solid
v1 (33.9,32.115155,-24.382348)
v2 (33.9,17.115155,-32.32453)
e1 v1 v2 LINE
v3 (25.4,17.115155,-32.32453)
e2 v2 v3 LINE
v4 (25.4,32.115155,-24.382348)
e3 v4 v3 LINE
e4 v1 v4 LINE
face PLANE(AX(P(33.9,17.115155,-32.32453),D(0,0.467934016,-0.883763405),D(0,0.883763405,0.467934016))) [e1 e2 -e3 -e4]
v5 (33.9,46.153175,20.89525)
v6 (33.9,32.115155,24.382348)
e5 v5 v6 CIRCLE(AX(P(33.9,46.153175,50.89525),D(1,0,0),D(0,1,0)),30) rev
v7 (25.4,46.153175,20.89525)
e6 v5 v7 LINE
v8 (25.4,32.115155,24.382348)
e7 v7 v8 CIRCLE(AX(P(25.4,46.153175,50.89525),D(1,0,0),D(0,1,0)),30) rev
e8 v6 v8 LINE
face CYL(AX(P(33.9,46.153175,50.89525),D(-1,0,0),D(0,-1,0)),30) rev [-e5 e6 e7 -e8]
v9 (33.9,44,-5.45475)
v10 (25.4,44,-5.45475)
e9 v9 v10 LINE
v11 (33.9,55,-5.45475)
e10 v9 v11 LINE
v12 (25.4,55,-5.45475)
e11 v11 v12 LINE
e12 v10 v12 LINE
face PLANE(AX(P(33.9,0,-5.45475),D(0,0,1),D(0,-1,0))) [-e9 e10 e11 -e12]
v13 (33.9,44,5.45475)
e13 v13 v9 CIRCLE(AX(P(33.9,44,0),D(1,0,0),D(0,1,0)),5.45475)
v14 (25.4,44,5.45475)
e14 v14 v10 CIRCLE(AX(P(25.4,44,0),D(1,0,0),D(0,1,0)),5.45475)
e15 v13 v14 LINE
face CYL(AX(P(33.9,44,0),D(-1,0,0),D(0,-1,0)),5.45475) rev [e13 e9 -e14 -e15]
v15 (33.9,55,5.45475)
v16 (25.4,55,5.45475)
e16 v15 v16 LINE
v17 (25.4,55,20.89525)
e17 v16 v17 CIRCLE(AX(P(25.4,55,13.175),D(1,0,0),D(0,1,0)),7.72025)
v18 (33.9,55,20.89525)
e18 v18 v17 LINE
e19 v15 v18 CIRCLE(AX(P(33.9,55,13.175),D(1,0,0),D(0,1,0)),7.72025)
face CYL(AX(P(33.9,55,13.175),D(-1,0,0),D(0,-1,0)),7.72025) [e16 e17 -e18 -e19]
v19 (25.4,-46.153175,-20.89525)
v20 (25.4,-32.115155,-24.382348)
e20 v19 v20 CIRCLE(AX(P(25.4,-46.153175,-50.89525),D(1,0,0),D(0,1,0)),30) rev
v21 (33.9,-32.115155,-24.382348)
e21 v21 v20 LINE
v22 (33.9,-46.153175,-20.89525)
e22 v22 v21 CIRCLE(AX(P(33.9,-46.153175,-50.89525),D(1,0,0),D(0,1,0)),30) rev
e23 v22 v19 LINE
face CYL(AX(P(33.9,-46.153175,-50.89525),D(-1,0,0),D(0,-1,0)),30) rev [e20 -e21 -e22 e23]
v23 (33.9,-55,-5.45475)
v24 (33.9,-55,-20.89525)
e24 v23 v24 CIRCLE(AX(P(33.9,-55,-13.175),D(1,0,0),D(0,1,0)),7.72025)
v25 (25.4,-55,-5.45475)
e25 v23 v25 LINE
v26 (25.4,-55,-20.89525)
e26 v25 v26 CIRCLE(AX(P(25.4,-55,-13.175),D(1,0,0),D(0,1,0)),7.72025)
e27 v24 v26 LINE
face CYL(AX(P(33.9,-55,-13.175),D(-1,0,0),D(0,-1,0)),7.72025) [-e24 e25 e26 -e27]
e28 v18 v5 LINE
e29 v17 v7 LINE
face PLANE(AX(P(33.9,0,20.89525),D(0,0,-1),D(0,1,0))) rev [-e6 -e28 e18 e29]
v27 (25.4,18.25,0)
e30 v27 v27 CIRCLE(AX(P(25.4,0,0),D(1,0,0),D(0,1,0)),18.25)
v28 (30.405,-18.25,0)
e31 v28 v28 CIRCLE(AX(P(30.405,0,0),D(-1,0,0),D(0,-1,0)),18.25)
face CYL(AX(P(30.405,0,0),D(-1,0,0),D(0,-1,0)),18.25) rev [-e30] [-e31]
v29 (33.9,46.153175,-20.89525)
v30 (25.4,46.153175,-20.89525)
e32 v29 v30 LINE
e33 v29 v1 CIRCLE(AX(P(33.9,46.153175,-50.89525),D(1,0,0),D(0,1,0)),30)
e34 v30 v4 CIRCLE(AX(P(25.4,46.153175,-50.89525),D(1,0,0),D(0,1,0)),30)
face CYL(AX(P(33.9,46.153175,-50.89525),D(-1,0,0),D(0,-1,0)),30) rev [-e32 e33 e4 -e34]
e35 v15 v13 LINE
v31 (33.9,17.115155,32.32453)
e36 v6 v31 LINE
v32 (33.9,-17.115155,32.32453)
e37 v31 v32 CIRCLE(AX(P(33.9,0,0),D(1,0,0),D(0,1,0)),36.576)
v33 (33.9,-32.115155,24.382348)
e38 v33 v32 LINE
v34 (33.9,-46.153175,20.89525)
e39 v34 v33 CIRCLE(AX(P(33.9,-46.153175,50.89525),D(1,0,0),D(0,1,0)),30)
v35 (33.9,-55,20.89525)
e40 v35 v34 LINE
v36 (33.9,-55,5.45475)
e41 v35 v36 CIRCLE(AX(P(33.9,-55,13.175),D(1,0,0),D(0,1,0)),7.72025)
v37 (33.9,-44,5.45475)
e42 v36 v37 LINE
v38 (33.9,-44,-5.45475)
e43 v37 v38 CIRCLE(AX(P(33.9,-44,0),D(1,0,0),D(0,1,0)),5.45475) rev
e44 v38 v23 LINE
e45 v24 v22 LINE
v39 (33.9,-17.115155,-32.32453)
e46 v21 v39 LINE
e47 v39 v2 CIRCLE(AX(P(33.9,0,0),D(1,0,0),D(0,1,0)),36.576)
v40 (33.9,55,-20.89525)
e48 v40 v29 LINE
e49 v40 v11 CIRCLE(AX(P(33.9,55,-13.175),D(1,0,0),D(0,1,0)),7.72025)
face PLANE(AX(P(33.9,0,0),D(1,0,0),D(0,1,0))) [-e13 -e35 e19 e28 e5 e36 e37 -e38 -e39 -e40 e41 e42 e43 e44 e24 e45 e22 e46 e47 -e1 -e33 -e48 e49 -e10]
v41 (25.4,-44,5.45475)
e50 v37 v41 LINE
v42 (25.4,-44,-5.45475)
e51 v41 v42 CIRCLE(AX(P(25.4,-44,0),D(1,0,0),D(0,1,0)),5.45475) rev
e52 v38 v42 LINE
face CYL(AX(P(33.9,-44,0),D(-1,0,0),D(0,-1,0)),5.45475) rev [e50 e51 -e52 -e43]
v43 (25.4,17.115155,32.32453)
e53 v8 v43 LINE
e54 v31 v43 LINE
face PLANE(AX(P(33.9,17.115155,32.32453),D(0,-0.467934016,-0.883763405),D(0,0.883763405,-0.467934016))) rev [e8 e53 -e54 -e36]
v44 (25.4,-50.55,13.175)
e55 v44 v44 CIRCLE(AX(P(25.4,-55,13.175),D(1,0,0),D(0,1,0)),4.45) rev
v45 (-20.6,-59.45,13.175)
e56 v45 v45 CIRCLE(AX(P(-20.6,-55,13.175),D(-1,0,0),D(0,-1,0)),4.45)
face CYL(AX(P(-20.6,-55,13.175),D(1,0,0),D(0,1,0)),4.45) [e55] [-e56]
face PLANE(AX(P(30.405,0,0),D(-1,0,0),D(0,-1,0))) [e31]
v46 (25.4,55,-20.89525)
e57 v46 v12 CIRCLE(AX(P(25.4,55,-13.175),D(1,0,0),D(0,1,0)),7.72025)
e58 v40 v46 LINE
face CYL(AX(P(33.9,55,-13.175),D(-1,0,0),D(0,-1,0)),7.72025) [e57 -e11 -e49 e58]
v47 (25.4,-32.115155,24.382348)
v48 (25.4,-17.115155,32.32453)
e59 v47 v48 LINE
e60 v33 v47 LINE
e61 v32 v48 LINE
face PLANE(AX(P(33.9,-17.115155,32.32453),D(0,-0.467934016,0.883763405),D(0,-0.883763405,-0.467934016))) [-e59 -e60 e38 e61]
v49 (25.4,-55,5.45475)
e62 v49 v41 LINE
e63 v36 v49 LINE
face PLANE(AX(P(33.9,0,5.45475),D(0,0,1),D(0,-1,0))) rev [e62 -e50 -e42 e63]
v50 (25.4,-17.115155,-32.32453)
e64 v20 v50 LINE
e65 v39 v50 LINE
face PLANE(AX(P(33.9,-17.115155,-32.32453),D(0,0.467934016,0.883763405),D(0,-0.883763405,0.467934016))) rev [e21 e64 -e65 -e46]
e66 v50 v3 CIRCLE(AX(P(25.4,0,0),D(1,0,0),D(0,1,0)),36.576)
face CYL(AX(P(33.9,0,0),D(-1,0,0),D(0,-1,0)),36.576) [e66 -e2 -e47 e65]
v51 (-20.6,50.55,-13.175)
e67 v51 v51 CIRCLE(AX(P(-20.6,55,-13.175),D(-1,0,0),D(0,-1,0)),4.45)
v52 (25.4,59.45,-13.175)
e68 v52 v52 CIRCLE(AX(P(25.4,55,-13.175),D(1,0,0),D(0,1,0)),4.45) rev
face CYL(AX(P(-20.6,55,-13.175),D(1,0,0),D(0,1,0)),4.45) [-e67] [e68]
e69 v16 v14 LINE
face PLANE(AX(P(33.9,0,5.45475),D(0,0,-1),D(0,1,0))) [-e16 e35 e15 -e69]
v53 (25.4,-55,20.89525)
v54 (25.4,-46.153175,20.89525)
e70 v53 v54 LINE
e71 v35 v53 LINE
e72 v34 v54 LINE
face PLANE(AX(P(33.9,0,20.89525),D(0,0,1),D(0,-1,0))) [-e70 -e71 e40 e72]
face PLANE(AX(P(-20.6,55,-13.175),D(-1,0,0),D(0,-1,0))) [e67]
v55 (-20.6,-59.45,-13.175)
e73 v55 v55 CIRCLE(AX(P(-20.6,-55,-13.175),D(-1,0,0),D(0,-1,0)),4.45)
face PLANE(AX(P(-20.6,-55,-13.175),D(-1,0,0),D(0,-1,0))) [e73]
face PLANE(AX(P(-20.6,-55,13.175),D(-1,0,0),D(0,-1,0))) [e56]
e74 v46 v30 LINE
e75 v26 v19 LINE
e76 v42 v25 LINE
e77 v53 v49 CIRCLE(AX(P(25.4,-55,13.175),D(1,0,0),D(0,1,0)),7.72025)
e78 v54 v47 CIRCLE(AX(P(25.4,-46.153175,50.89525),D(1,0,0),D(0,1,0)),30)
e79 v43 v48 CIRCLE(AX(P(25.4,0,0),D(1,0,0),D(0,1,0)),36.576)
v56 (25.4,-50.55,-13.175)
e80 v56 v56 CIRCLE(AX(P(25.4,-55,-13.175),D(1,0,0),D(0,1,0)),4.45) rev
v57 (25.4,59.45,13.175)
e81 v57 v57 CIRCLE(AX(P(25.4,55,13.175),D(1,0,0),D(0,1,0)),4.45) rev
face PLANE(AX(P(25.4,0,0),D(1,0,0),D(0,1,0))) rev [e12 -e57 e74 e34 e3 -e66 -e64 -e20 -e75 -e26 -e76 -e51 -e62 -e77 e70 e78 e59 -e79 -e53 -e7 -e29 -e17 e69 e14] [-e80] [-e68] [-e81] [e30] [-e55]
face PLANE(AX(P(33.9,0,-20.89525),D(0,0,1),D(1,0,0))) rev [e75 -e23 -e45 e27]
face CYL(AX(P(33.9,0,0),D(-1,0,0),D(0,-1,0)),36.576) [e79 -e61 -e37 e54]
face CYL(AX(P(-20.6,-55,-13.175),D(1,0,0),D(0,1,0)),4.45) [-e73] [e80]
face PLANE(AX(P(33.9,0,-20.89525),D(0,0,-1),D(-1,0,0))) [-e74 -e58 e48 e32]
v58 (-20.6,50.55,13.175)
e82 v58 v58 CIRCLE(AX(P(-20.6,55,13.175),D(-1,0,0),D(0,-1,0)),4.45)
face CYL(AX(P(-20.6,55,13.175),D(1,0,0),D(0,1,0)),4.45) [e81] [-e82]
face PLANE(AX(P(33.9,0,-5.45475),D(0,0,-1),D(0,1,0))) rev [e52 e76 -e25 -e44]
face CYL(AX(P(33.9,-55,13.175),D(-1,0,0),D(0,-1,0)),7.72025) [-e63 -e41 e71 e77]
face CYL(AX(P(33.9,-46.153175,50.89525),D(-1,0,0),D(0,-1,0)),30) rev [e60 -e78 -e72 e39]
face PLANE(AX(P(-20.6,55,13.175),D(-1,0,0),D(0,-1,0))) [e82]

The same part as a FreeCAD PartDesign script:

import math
import FreeCAD as App
import Part
import Sketcher
from FreeCAD import Vector


def add_polygon(sketch, points):
    """Adds a closed chain of lines whose ends are joined by coincident constraints."""
    first, n = sketch.GeometryCount, len(points)
    for a, b in zip(points, points[1:] + points[:1]):
        sketch.addGeometry(Part.LineSegment(App.Vector(*a, 0), App.Vector(*b, 0)), False)
    for i in range(n):
        sketch.addConstraint(Sketcher.Constraint("Coincident", first + i, 2, first + (i + 1) % n, 1))

doc = App.newDocument("Part")
body = doc.addObject("PartDesign::Body", "Body")

sketch1 = doc.addObject("Sketcher::SketchObject", "Sketch")
body.addObject(sketch1)
sketch1.AttachmentSupport = (doc.XY_Plane, [""])
sketch1.MapMode = "FlatFace"
add_polygon(sketch1, [(8.255, 18.25), (8.255, 0), (25.4, 0), (25.4, 18.25)])
sketch1.addConstraint(Sketcher.Constraint("Vertical", 0))
sketch1.addConstraint(Sketcher.Constraint("Horizontal", 1))
sketch1.addConstraint(Sketcher.Constraint("Vertical", 2))
sketch1.addConstraint(Sketcher.Constraint("Horizontal", 3))
sketch1.addConstraint(Sketcher.Constraint("PointOnObject", 0, 2, -1))
sketch1.addConstraint(Sketcher.Constraint("DistanceY", 0, 2, 0, 1, 18.25))
sketch1.addConstraint(Sketcher.Constraint("DistanceX", -1, 1, 1, 2, 25.4))
sketch1.addConstraint(Sketcher.Constraint("DistanceX", 1, 1, 1, 2, 17.145))
revolution = doc.addObject("PartDesign::Revolution", "Revolution")
body.addObject(revolution)
revolution.Profile = sketch1
revolution.ReferenceAxis = (sketch1, ["H_Axis"])
revolution.Angle = 360

sketch2 = doc.addObject("Sketcher::SketchObject", "Sketch001")
body.addObject(sketch2)
sketch2.AttachmentSupport = (doc.YZ_Plane, [""])
sketch2.MapMode = "FlatFace"
sketch2.AttachmentOffset = App.Placement(Vector(0, 0, 8.255), App.Rotation())
sketch2.addGeometry(Part.Circle(Vector(0, 0, 0), Vector(0, 0, 1), 3.71475), False)
sketch2.addConstraint(Sketcher.Constraint("Coincident", 0, 3, -1, 1))
sketch2.addConstraint(Sketcher.Constraint("Diameter", 0, 7.4295))
pocket1 = doc.addObject("PartDesign::Pocket", "Pocket")
body.addObject(pocket1)
pocket1.Profile = sketch2
pocket1.Length = 8.5725
pocket1.Reversed = True
body2 = doc.addObject("PartDesign::Body", "Body001")

sketch3 = doc.addObject("Sketcher::SketchObject", "Sketch002")
body2.addObject(sketch3)
sketch3.AttachmentSupport = (doc.getObject("YZ_Plane001"), [""])
sketch3.MapMode = "FlatFace"
sketch3.AttachmentOffset = App.Placement(Vector(0, 0, 25.4), App.Rotation())
sketch3.addGeometry(Part.LineSegment(Vector(32.115155, 24.382348, 0), Vector(17.115155, 32.32453, 0)), False)
sketch3.addGeometry(Part.ArcOfCircle(Part.Circle(Vector(0, 0, 0), Vector(0, 0, 1), 36.576), math.radians(62.099728), math.radians(117.900272)), False)
sketch3.addGeometry(Part.LineSegment(Vector(-17.115155, 32.32453, 0), Vector(-32.115155, 24.382348, 0)), False)
sketch3.addGeometry(Part.ArcOfCircle(Part.Circle(Vector(-46.153175, 50.89525, 0), Vector(0, 0, 1), 30), math.radians(-90), math.radians(-62.099728)), False)
sketch3.addGeometry(Part.LineSegment(Vector(-46.153175, 20.89525, 0), Vector(-55, 20.89525, 0)), False)
sketch3.addGeometry(Part.ArcOfCircle(Part.Circle(Vector(-55, 13.175, 0), Vector(0, 0, 1), 7.72025), math.radians(90), math.radians(270)), False)
sketch3.addGeometry(Part.LineSegment(Vector(-55, 5.45475, 0), Vector(-44, 5.45475, 0)), False)
sketch3.addGeometry(Part.ArcOfCircle(Part.Circle(Vector(-44, 0, 0), Vector(0, 0, 1), 5.45475), math.radians(-90), math.radians(90)), False)
sketch3.addGeometry(Part.LineSegment(Vector(-44, -5.45475, 0), Vector(-55, -5.45475, 0)), False)
sketch3.addGeometry(Part.ArcOfCircle(Part.Circle(Vector(-55, -13.175, 0), Vector(0, 0, 1), 7.72025), math.radians(90), math.radians(270)), False)
sketch3.addGeometry(Part.LineSegment(Vector(-55, -20.89525, 0), Vector(-46.153175, -20.89525, 0)), False)
sketch3.addGeometry(Part.ArcOfCircle(Part.Circle(Vector(-46.153175, -50.89525, 0), Vector(0, 0, 1), 30), math.radians(62.099728), math.radians(90)), False)
sketch3.addGeometry(Part.LineSegment(Vector(-32.115155, -24.382348, 0), Vector(-17.115155, -32.32453, 0)), False)
sketch3.addGeometry(Part.ArcOfCircle(Part.Circle(Vector(0, 0, 0), Vector(0, 0, 1), 36.576), math.radians(-117.900272), math.radians(-62.099728)), False)
sketch3.addGeometry(Part.LineSegment(Vector(17.115155, -32.32453, 0), Vector(32.115155, -24.382348, 0)), False)
sketch3.addGeometry(Part.ArcOfCircle(Part.Circle(Vector(46.153175, -50.89525, 0), Vector(0, 0, 1), 30), math.radians(90), math.radians(117.900272)), False)
sketch3.addGeometry(Part.LineSegment(Vector(46.153175, -20.89525, 0), Vector(55, -20.89525, 0)), False)
sketch3.addGeometry(Part.ArcOfCircle(Part.Circle(Vector(55, -13.175, 0), Vector(0, 0, 1), 7.72025), math.radians(-90), math.radians(90)), False)
sketch3.addGeometry(Part.LineSegment(Vector(55, -5.45475, 0), Vector(44, -5.45475, 0)), False)
sketch3.addGeometry(Part.ArcOfCircle(Part.Circle(Vector(44, 0, 0), Vector(0, 0, 1), 5.45475), math.radians(90), math.radians(270)), False)
sketch3.addGeometry(Part.LineSegment(Vector(44, 5.45475, 0), Vector(55, 5.45475, 0)), False)
sketch3.addGeometry(Part.ArcOfCircle(Part.Circle(Vector(55, 13.175, 0), Vector(0, 0, 1), 7.72025), math.radians(-90), math.radians(90)), False)
sketch3.addGeometry(Part.LineSegment(Vector(55, 20.89525, 0), Vector(46.153175, 20.89525, 0)), False)
sketch3.addGeometry(Part.ArcOfCircle(Part.Circle(Vector(46.153175, 50.89525, 0), Vector(0, 0, 1), 30), math.radians(-117.900272), math.radians(-90)), False)
sketch3.addConstraint(Sketcher.Constraint("Tangent", 0, 2, 1, 1))
sketch3.addConstraint(Sketcher.Constraint("Tangent", 1, 2, 2, 1))
sketch3.addConstraint(Sketcher.Constraint("Tangent", 2, 2, 3, 2))
sketch3.addConstraint(Sketcher.Constraint("Tangent", 3, 1, 4, 1))
sketch3.addConstraint(Sketcher.Constraint("Tangent", 4, 2, 5, 1))
sketch3.addConstraint(Sketcher.Constraint("Tangent", 5, 2, 6, 1))
sketch3.addConstraint(Sketcher.Constraint("Tangent", 6, 2, 7, 2))
sketch3.addConstraint(Sketcher.Constraint("Tangent", 7, 1, 8, 1))
sketch3.addConstraint(Sketcher.Constraint("Tangent", 8, 2, 9, 1))
sketch3.addConstraint(Sketcher.Constraint("Tangent", 9, 2, 10, 1))
sketch3.addConstraint(Sketcher.Constraint("Tangent", 10, 2, 11, 2))
sketch3.addConstraint(Sketcher.Constraint("Tangent", 11, 1, 12, 1))
sketch3.addConstraint(Sketcher.Constraint("Tangent", 12, 2, 13, 1))
sketch3.addConstraint(Sketcher.Constraint("Tangent", 13, 2, 14, 1))
sketch3.addConstraint(Sketcher.Constraint("Tangent", 14, 2, 15, 2))
sketch3.addConstraint(Sketcher.Constraint("Tangent", 15, 1, 16, 1))
sketch3.addConstraint(Sketcher.Constraint("Tangent", 16, 2, 17, 1))
sketch3.addConstraint(Sketcher.Constraint("Tangent", 17, 2, 18, 1))
sketch3.addConstraint(Sketcher.Constraint("Tangent", 18, 2, 19, 2))
sketch3.addConstraint(Sketcher.Constraint("Tangent", 19, 1, 20, 1))
sketch3.addConstraint(Sketcher.Constraint("Tangent", 20, 2, 21, 1))
sketch3.addConstraint(Sketcher.Constraint("Tangent", 21, 2, 22, 1))
sketch3.addConstraint(Sketcher.Constraint("Tangent", 22, 2, 23, 2))
sketch3.addConstraint(Sketcher.Constraint("Tangent", 23, 1, 0, 1))
sketch3.addConstraint(Sketcher.Constraint("Horizontal", 4))
sketch3.addConstraint(Sketcher.Constraint("Horizontal", 6))
sketch3.addConstraint(Sketcher.Constraint("Horizontal", 8))
sketch3.addConstraint(Sketcher.Constraint("Horizontal", 10))
sketch3.addConstraint(Sketcher.Constraint("Horizontal", 16))
sketch3.addConstraint(Sketcher.Constraint("Horizontal", 18))
sketch3.addConstraint(Sketcher.Constraint("Horizontal", 20))
sketch3.addConstraint(Sketcher.Constraint("Horizontal", 22))
sketch3.addConstraint(Sketcher.Constraint("Coincident", 1, 3, -1, 1))
sketch3.addConstraint(Sketcher.Constraint("Coincident", 13, 3, -1, 1))
sketch3.addConstraint(Sketcher.Constraint("Equal", 5, 9))
sketch3.addConstraint(Sketcher.Constraint("Equal", 3, 11))
sketch3.addConstraint(Sketcher.Constraint("Equal", 1, 13))
sketch3.addConstraint(Sketcher.Constraint("Equal", 11, 15))
sketch3.addConstraint(Sketcher.Constraint("Equal", 9, 17))
sketch3.addConstraint(Sketcher.Constraint("Equal", 7, 19))
sketch3.addConstraint(Sketcher.Constraint("Equal", 17, 21))
sketch3.addConstraint(Sketcher.Constraint("Equal", 15, 23))
sketch3.addConstraint(Sketcher.Constraint("Symmetric", 3, 3, 15, 3, -1, 1))
sketch3.addConstraint(Sketcher.Constraint("Symmetric", 11, 3, 15, 3, -2))
sketch3.addConstraint(Sketcher.Constraint("Parallel", 0, 12))
sketch3.addConstraint(Sketcher.Constraint("Vertical", 5, 3, 9, 3))
sketch3.addConstraint(Sketcher.Constraint("Vertical", 17, 3, 21, 3))
sketch3.addConstraint(Sketcher.Constraint("Equal", 10, 16))
sketch3.addConstraint(Sketcher.Constraint("Equal", 8, 18))
sketch3.addConstraint(Sketcher.Constraint("Radius", 3, 30.0))
sketch3.addConstraint(Sketcher.Constraint("DistanceX", 6, 1, 6, 2, 11.0))
sketch3.addConstraint(Sketcher.Constraint("DistanceX", 5, 3, -1, 1, 55.0))
sketch3.addConstraint(Sketcher.Constraint("Radius", 1, 36.576))
sketch3.addConstraint(Sketcher.Constraint("DistanceX", 2, 2, 1, 2, 15.0))
sketch3.addConstraint(Sketcher.Constraint("Radius", 5, 7.72025))
sketch3.addConstraint(Sketcher.Constraint("Radius", 7, 5.45475))
pad1 = doc.addObject("PartDesign::Pad", "Pad")
body2.addObject(pad1)
pad1.Profile = sketch3
pad1.Length = 8.5

sketch4 = doc.addObject("Sketcher::SketchObject", "Sketch003")
body2.addObject(sketch4)
sketch4.AttachmentSupport = (doc.getObject("YZ_Plane001"), [""])
sketch4.MapMode = "FlatFace"
sketch4.AttachmentOffset = App.Placement(Vector(0, 0, 25.4), App.Rotation())
sketch4.addGeometry(Part.Circle(Vector(55, -13.175, 0), Vector(0, 0, 1), 4.45), False)
sketch4.addGeometry(Part.Circle(Vector(-55, 13.175, 0), Vector(0, 0, 1), 4.45), False)
sketch4.addGeometry(Part.Circle(Vector(55, 13.175, 0), Vector(0, 0, 1), 4.45), False)
sketch4.addGeometry(Part.Circle(Vector(-55, -13.175, 0), Vector(0, 0, 1), 4.45), False)
sketch4.addConstraint(Sketcher.Constraint("Equal", 0, 1))
sketch4.addConstraint(Sketcher.Constraint("Equal", 1, 2))
sketch4.addConstraint(Sketcher.Constraint("Equal", 2, 3))
sketch4.addConstraint(Sketcher.Constraint("Symmetric", 0, 3, 1, 3, -1, 1))
sketch4.addConstraint(Sketcher.Constraint("Symmetric", 2, 3, 3, 3, -1, 1))
sketch4.addConstraint(Sketcher.Constraint("Symmetric", 1, 3, 2, 3, -2))
sketch4.addConstraint(Sketcher.Constraint("Diameter", 0, 8.9))
sketch4.addConstraint(Sketcher.Constraint("DistanceX", -1, 1, 0, 3, 55.0))
sketch4.addConstraint(Sketcher.Constraint("DistanceY", 0, 3, 1, 3, 26.35))
pad2 = doc.addObject("PartDesign::Pad", "Pad001")
body2.addObject(pad2)
pad2.Profile = sketch4
pad2.Length = 46
pad2.Reversed = True
body3 = doc.addObject("PartDesign::Body", "Body002")

sketch5 = doc.addObject("Sketcher::SketchObject", "Sketch004")
body3.addObject(sketch5)
sketch5.AttachmentSupport = (doc.getObject("YZ_Plane002"), [""])
sketch5.MapMode = "FlatFace"
sketch5.AttachmentOffset = App.Placement(Vector(0, 0, 8.255), App.Rotation())
sketch5.addGeometry(Part.Circle(Vector(0, 0, 0), Vector(0, 0, 1), 18.25), False)
sketch5.addConstraint(Sketcher.Constraint("Coincident", 0, 3, -1, 1))
sketch5.addConstraint(Sketcher.Constraint("Diameter", 0, 36.5))
pad3 = doc.addObject("PartDesign::Pad", "Pad002")
body3.addObject(pad3)
pad3.Profile = sketch5
pad3.Length = 22.15
doc.recompute()

body4 = doc.addObject("PartDesign::Body", "Body003")
body4.BaseFeature = body3
boolean = doc.addObject("PartDesign::Boolean", "Boolean")
body.addObject(boolean)
boolean.Type = "Cut"
boolean.addObjects([body4])
doc.recompute()

boolean2 = doc.addObject("PartDesign::Boolean", "Boolean001")
body2.addObject(boolean2)
boolean2.Type = "Cut"
boolean2.addObjects([body3])

doc.recompute()
